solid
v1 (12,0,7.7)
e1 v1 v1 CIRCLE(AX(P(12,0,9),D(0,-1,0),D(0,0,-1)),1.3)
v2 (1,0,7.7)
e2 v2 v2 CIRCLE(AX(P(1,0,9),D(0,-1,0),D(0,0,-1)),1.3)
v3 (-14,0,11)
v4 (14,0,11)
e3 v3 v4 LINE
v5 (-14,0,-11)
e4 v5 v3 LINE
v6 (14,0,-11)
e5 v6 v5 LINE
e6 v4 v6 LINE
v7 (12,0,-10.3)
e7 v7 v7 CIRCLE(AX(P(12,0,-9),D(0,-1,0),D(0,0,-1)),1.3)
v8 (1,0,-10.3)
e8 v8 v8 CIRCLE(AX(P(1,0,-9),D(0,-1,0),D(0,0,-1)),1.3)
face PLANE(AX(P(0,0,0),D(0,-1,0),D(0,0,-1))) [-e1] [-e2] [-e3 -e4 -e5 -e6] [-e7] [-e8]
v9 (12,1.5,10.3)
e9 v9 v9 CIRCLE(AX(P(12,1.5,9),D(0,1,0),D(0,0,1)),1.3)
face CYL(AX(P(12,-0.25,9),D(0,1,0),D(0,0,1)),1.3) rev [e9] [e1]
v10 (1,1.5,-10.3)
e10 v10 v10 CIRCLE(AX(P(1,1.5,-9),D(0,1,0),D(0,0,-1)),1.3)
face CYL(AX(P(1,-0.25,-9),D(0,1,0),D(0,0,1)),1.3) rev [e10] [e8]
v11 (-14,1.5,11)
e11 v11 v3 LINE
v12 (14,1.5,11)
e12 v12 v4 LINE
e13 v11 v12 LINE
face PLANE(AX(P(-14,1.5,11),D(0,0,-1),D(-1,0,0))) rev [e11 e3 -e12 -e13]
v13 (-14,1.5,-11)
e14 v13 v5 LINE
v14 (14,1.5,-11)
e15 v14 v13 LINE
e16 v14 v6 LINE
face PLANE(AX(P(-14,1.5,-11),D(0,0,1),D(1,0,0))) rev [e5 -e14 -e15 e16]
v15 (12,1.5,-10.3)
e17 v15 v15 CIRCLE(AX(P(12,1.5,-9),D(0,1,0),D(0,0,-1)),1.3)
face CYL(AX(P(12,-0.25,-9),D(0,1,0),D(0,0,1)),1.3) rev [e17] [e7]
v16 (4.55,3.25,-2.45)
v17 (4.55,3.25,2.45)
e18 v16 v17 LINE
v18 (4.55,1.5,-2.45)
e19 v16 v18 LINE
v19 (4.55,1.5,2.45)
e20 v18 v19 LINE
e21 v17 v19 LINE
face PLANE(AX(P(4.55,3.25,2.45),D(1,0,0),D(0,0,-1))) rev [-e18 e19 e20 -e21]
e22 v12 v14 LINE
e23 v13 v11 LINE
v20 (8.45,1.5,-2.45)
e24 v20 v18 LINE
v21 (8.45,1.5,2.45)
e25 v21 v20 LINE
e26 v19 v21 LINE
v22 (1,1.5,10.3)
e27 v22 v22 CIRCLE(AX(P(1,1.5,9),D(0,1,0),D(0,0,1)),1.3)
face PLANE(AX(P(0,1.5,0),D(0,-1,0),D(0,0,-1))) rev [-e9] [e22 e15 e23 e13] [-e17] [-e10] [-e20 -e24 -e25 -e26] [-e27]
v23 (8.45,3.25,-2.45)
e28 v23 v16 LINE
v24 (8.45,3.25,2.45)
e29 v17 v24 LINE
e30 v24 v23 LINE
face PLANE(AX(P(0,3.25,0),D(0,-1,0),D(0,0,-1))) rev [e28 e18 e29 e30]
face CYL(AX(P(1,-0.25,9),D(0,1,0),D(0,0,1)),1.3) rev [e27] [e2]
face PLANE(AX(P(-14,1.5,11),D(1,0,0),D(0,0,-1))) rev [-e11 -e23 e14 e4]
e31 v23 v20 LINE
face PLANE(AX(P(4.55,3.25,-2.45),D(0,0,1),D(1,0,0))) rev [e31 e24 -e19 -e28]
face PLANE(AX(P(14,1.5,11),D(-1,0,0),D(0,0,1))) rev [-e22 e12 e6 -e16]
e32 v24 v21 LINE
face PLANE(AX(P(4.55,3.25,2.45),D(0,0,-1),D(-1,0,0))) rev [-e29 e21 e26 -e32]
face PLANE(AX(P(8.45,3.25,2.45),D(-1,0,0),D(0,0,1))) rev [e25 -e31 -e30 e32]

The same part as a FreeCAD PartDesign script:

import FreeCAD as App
import Part
import Sketcher
Q = App.Units.Quantity

doc = App.newDocument("Part")
body = doc.addObject("PartDesign::Body", "Body")

# Sketch on XZ plane
sketch1 = body.newObject("Sketcher::SketchObject", "Sketch")
sketch1.AttachmentSupport = (doc.getObject("XZ_Plane"), [""])
sketch1.MapMode = "FlatFace"
sketch1.addGeometry([
    Part.LineSegment(App.Vector(-14, -11, 0), App.Vector(-14, 11, 0)),
    Part.LineSegment(App.Vector(-14, 11, 0), App.Vector(14, 11, 0)),
    Part.LineSegment(App.Vector(14, 11, 0), App.Vector(14, -11, 0)),
    Part.LineSegment(App.Vector(14, -11, 0), App.Vector(-14, -11, 0)),
], False)
sketch1.addConstraint([
    Sketcher.Constraint("Coincident", 0, 2, 1, 1),
    Sketcher.Constraint("Coincident", 1, 2, 2, 1),
    Sketcher.Constraint("Coincident", 2, 2, 3, 1),
    Sketcher.Constraint("Coincident", 3, 2, 0, 1),
    Sketcher.Constraint("Vertical", 0),
    Sketcher.Constraint("Horizontal", 1),
    Sketcher.Constraint("Vertical", 2),
    Sketcher.Constraint("Horizontal", 3),
    Sketcher.Constraint("Symmetric", 0, 2, 2, 2, -1, 1),
    Sketcher.Constraint("DistanceX", 1, 1, 1, 2, Q("28 mm")),
    Sketcher.Constraint("DistanceY", 0, 1, 0, 2, Q("22 mm")),
])
pad1 = body.newObject("PartDesign::Pad", "Pad")
pad1.Profile = sketch1
pad1.Length = 1.5
pad1.Reversed = True

# Sketch on XZ plane
sketch2 = body.newObject("Sketcher::SketchObject", "Sketch001")
sketch2.AttachmentSupport = (doc.getObject("XZ_Plane"), [""])
sketch2.MapMode = "FlatFace"
sketch2.AttachmentOffset = App.Placement(App.Vector(0, 0, -1.5), App.Rotation())
sketch2.addGeometry([
    Part.LineSegment(App.Vector(4.55, -2.45, 0), App.Vector(4.55, 2.45, 0)),
    Part.LineSegment(App.Vector(4.55, 2.45, 0), App.Vector(8.45, 2.45, 0)),
    Part.LineSegment(App.Vector(8.45, 2.45, 0), App.Vector(8.45, -2.45, 0)),
    Part.LineSegment(App.Vector(8.45, -2.45, 0), App.Vector(4.55, -2.45, 0)),
], False)
sketch2.addConstraint([
    Sketcher.Constraint("Coincident", 0, 2, 1, 1),
    Sketcher.Constraint("Coincident", 1, 2, 2, 1),
    Sketcher.Constraint("Coincident", 2, 2, 3, 1),
    Sketcher.Constraint("Coincident", 3, 2, 0, 1),
    Sketcher.Constraint("Vertical", 0),
    Sketcher.Constraint("Horizontal", 1),
    Sketcher.Constraint("Vertical", 2),
    Sketcher.Constraint("Horizontal", 3),
    Sketcher.Constraint("DistanceX", 1, 1, 1, 2, Q("3.9 mm")),
    Sketcher.Constraint("DistanceY", 0, 1, 0, 2, Q("4.9 mm")),
    Sketcher.Constraint("DistanceX", -1, 1, 0, 2, Q("4.55 mm")),
    Sketcher.Constraint("DistanceY", -1, 1, 0, 2, Q("2.45 mm")),
])
pad2 = body.newObject("PartDesign::Pad", "Pad001")
pad2.Profile = sketch2
pad2.Length = 1.75
pad2.Reversed = True

# Sketch on XZ plane
sketch3 = body.newObject("Sketcher::SketchObject", "Sketch002")
sketch3.AttachmentSupport = (doc.getObject("XZ_Plane"), [""])
sketch3.MapMode = "FlatFace"
sketch3.AttachmentOffset = App.Placement(App.Vector(0, 0, -1.5), App.Rotation())
sketch3.addGeometry([
    Part.Circle(App.Vector(12, 9, 0), App.Vector(0, 0, 1), 1.3),
    Part.Circle(App.Vector(1, 9, 0), App.Vector(0, 0, 1), 1.3),
    Part.Circle(App.Vector(12, -9, 0), App.Vector(0, 0, 1), 1.3),
    Part.Circle(App.Vector(1, -9, 0), App.Vector(0, 0, 1), 1.3),
], False)
sketch3.addConstraint([
    Sketcher.Constraint("Equal", 0, 1),
    Sketcher.Constraint("Equal", 1, 2),
    Sketcher.Constraint("Equal", 2, 3),
    Sketcher.Constraint("Symmetric", 0, 3, 2, 3, -1),
    Sketcher.Constraint("Symmetric", 1, 3, 3, 3, -1),
    Sketcher.Constraint("Horizontal", 0, 3, 1, 3),
    Sketcher.Constraint("Diameter", 0, Q("2.6 mm")),
    Sketcher.Constraint("DistanceX", -1, 1, 0, 3, Q("12 mm")),
    Sketcher.Constraint("DistanceY", -1, 1, 0, 3, Q("9 mm")),
    Sketcher.Constraint("DistanceX", -1, 1, 1, 3, Q("1 mm")),
])
pocket1 = body.newObject("PartDesign::Pocket", "Pocket")
pocket1.Profile = sketch3
pocket1.Length = 1.75
pocket1.Reversed = True

doc.recompute()
